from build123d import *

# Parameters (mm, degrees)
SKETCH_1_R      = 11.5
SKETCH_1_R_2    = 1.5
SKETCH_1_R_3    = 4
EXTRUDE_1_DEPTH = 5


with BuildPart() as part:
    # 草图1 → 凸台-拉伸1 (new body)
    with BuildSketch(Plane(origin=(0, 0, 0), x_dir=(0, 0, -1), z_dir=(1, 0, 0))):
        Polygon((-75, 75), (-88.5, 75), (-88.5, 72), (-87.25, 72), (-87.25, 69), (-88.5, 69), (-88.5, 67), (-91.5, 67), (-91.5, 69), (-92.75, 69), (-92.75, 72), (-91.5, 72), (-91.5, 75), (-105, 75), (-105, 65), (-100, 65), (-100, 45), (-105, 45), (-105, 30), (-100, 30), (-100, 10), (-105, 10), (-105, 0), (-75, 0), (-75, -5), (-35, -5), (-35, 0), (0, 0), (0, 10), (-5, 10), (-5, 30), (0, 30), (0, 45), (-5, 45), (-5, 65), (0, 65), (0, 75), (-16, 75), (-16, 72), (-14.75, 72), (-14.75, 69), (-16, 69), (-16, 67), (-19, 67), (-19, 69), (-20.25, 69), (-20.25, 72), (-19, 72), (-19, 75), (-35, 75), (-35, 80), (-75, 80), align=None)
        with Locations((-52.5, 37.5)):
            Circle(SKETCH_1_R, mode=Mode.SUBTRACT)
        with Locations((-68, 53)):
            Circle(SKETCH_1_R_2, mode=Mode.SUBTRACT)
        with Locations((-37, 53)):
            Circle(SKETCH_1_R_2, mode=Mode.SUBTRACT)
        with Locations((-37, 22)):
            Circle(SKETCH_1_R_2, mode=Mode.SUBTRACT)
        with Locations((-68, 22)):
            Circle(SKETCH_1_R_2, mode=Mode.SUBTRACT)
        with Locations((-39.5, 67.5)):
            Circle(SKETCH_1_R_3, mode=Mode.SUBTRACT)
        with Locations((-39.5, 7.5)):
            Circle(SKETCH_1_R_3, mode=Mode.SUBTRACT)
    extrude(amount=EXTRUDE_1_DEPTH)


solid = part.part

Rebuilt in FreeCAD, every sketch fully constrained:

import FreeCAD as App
import Part
import Sketcher

doc = App.newDocument("Part")
body = doc.addObject("PartDesign::Body", "Body")

# Sketch on YZ plane
sketch1 = body.newObject("Sketcher::SketchObject", "Sketch")
sketch1.AttachmentSupport = (doc.getObject("YZ_Plane"), [""])
sketch1.MapMode = "FlatFace"
sketch1.addGeometry(Part.LineSegment(App.Vector(75, 75, 0), App.Vector(75, 88.5, 0)), False)
sketch1.addGeometry(Part.LineSegment(App.Vector(75, 88.5, 0), App.Vector(72, 88.5, 0)), False)
sketch1.addGeometry(Part.LineSegment(App.Vector(72, 88.5, 0), App.Vector(72, 87.2, 0)), False)
sketch1.addGeometry(Part.LineSegment(App.Vector(72, 87.2, 0), App.Vector(69, 87.2, 0)), False)
sketch1.addGeometry(Part.LineSegment(App.Vector(69, 87.2, 0), App.Vector(69, 88.5, 0)), False)
sketch1.addGeometry(Part.LineSegment(App.Vector(69, 88.5, 0), App.Vector(67, 88.5, 0)), False)
sketch1.addGeometry(Part.LineSegment(App.Vector(67, 88.5, 0), App.Vector(67, 91.5, 0)), False)
sketch1.addGeometry(Part.LineSegment(App.Vector(67, 91.5, 0), App.Vector(69, 91.5, 0)), False)
sketch1.addGeometry(Part.LineSegment(App.Vector(69, 91.5, 0), App.Vector(69, 92.8, 0)), False)
sketch1.addGeometry(Part.LineSegment(App.Vector(69, 92.8, 0), App.Vector(72, 92.8, 0)), False)
sketch1.addGeometry(Part.LineSegment(App.Vector(72, 92.8, 0), App.Vector(72, 91.5, 0)), False)
sketch1.addGeometry(Part.LineSegment(App.Vector(72, 91.5, 0), App.Vector(75, 91.5, 0)), False)
sketch1.addGeometry(Part.LineSegment(App.Vector(75, 91.5, 0), App.Vector(75, 105, 0)), False)
sketch1.addGeometry(Part.LineSegment(App.Vector(75, 105, 0), App.Vector(65, 105, 0)), False)
sketch1.addGeometry(Part.LineSegment(App.Vector(65, 105, 0), App.Vector(65, 100, 0)), False)
sketch1.addGeometry(Part.LineSegment(App.Vector(65, 100, 0), App.Vector(45, 100, 0)), False)
sketch1.addGeometry(Part.LineSegment(App.Vector(45, 100, 0), App.Vector(45, 105, 0)), False)
sketch1.addGeometry(Part.LineSegment(App.Vector(45, 105, 0), App.Vector(30, 105, 0)), False)
sketch1.addGeometry(Part.LineSegment(App.Vector(30, 105, 0), App.Vector(30, 100, 0)), False)
sketch1.addGeometry(Part.LineSegment(App.Vector(30, 100, 0), App.Vector(10, 100, 0)), False)
sketch1.addGeometry(Part.LineSegment(App.Vector(10, 100, 0), App.Vector(10, 105, 0)), False)
sketch1.addGeometry(Part.LineSegment(App.Vector(10, 105, 0), App.Vector(0, 105, 0)), False)
sketch1.addGeometry(Part.LineSegment(App.Vector(0, 105, 0), App.Vector(0, 75, 0)), False)
sketch1.addGeometry(Part.LineSegment(App.Vector(0, 75, 0), App.Vector(-5, 75, 0)), False)
sketch1.addGeometry(Part.LineSegment(App.Vector(-5, 75, 0), App.Vector(-5, 35, 0)), False)
sketch1.addGeometry(Part.LineSegment(App.Vector(-5, 35, 0), App.Vector(0, 35, 0)), False)
sketch1.addGeometry(Part.LineSegment(App.Vector(0, 35, 0), App.Vector(0, 0, 0)), False)
sketch1.addGeometry(Part.LineSegment(App.Vector(0, 0, 0), App.Vector(10, 0, 0)), False)
sketch1.addGeometry(Part.LineSegment(App.Vector(10, 0, 0), App.Vector(10, 5, 0)), False)
sketch1.addGeometry(Part.LineSegment(App.Vector(10, 5, 0), App.Vector(30, 5, 0)), False)
sketch1.addGeometry(Part.LineSegment(App.Vector(30, 5, 0), App.Vector(30, 0, 0)), False)
sketch1.addGeometry(Part.LineSegment(App.Vector(30, 0, 0), App.Vector(45, 0, 0)), False)
sketch1.addGeometry(Part.LineSegment(App.Vector(45, 0, 0), App.Vector(45, 5, 0)), False)
sketch1.addGeometry(Part.LineSegment(App.Vector(45, 5, 0), App.Vector(65, 5, 0)), False)
sketch1.addGeometry(Part.LineSegment(App.Vector(65, 5, 0), App.Vector(65, 0, 0)), False)
sketch1.addGeometry(Part.LineSegment(App.Vector(65, 0, 0), App.Vector(75, 0, 0)), False)
sketch1.addGeometry(Part.LineSegment(App.Vector(75, 0, 0), App.Vector(75, 16, 0)), False)
sketch1.addGeometry(Part.LineSegment(App.Vector(75, 16, 0), App.Vector(72, 16, 0)), False)
sketch1.addGeometry(Part.LineSegment(App.Vector(72, 16, 0), App.Vector(72, 14.8, 0)), False)
sketch1.addGeometry(Part.LineSegment(App.Vector(72, 14.8, 0), App.Vector(69, 14.8, 0)), False)
sketch1.addGeometry(Part.LineSegment(App.Vector(69, 14.8, 0), App.Vector(69, 16, 0)), False)
sketch1.addGeometry(Part.LineSegment(App.Vector(69, 16, 0), App.Vector(67, 16, 0)), False)
sketch1.addGeometry(Part.LineSegment(App.Vector(67, 16, 0), App.Vector(67, 19, 0)), False)
sketch1.addGeometry(Part.LineSegment(App.Vector(67, 19, 0), App.Vector(69, 19, 0)), False)
sketch1.addGeometry(Part.LineSegment(App.Vector(69, 19, 0), App.Vector(69, 20.2, 0)), False)
sketch1.addGeometry(Part.LineSegment(App.Vector(69, 20.2, 0), App.Vector(72, 20.2, 0)), False)
sketch1.addGeometry(Part.LineSegment(App.Vector(72, 20.2, 0), App.Vector(72, 19, 0)), False)
sketch1.addGeometry(Part.LineSegment(App.Vector(72, 19, 0), App.Vector(75, 19, 0)), False)
sketch1.addGeometry(Part.LineSegment(App.Vector(75, 19, 0), App.Vector(75, 35, 0)), False)
sketch1.addGeometry(Part.LineSegment(App.Vector(75, 35, 0), App.Vector(80, 35, 0)), False)
sketch1.addGeometry(Part.LineSegment(App.Vector(80, 35, 0), App.Vector(80, 75, 0)), False)
sketch1.addGeometry(Part.LineSegment(App.Vector(80, 75, 0), App.Vector(75, 75, 0)), False)
sketch1.addGeometry(Part.Circle(App.Vector(22, 68, 0), App.Vector(0, 0, 1), 1.5), False)
sketch1.addGeometry(Part.Circle(App.Vector(7.5, 39.5, 0), App.Vector(0, 0, 1), 4), False)
sketch1.addGeometry(Part.Circle(App.Vector(22, 37, 0), App.Vector(0, 0, 1), 1.5), False)
sketch1.addGeometry(Part.Circle(App.Vector(53, 68, 0), App.Vector(0, 0, 1), 1.5), False)
sketch1.addGeometry(Part.Circle(App.Vector(37.5, 52.5, 0), App.Vector(0, 0, 1), 11.5), False)
sketch1.addGeometry(Part.Circle(App.Vector(53, 37, 0), App.Vector(0, 0, 1), 1.5), False)
sketch1.addGeometry(Part.Circle(App.Vector(67.5, 39.5, 0), App.Vector(0, 0, 1), 4), False)
sketch1.addConstraint(Sketcher.Constraint("Coincident", 0, 2, 1, 1))
sketch1.addConstraint(Sketcher.Constraint("Coincident", 1, 2, 2, 1))
sketch1.addConstraint(Sketcher.Constraint("Coincident", 2, 2, 3, 1))
sketch1.addConstraint(Sketcher.Constraint("Coincident", 3, 2, 4, 1))
sketch1.addConstraint(Sketcher.Constraint("Coincident", 4, 2, 5, 1))
sketch1.addConstraint(Sketcher.Constraint("Coincident", 5, 2, 6, 1))
sketch1.addConstraint(Sketcher.Constraint("Coincident", 6, 2, 7, 1))
sketch1.addConstraint(Sketcher.Constraint("Coincident", 7, 2, 8, 1))
sketch1.addConstraint(Sketcher.Constraint("Coincident", 8, 2, 9, 1))
sketch1.addConstraint(Sketcher.Constraint("Coincident", 9, 2, 10, 1))
sketch1.addConstraint(Sketcher.Constraint("Coincident", 10, 2, 11, 1))
sketch1.addConstraint(Sketcher.Constraint("Coincident", 11, 2, 12, 1))
sketch1.addConstraint(Sketcher.Constraint("Coincident", 12, 2, 13, 1))
sketch1.addConstraint(Sketcher.Constraint("Coincident", 13, 2, 14, 1))
sketch1.addConstraint(Sketcher.Constraint("Coincident", 14, 2, 15, 1))
sketch1.addConstraint(Sketcher.Constraint("Coincident", 15, 2, 16, 1))
sketch1.addConstraint(Sketcher.Constraint("Coincident", 16, 2, 17, 1))
sketch1.addConstraint(Sketcher.Constraint("Coincident", 17, 2, 18, 1))
sketch1.addConstraint(Sketcher.Constraint("Coincident", 18, 2, 19, 1))
sketch1.addConstraint(Sketcher.Constraint("Coincident", 19, 2, 20, 1))
sketch1.addConstraint(Sketcher.Constraint("Coincident", 20, 2, 21, 1))
sketch1.addConstraint(Sketcher.Constraint("Coincident", 21, 2, 22, 1))
sketch1.addConstraint(Sketcher.Constraint("Coincident", 22, 2, 23, 1))
sketch1.addConstraint(Sketcher.Constraint("Coincident", 23, 2, 24, 1))
sketch1.addConstraint(Sketcher.Constraint("Coincident", 24, 2, 25, 1))
sketch1.addConstraint(Sketcher.Constraint("Coincident", 25, 2, 26, 1))
sketch1.addConstraint(Sketcher.Constraint("Coincident", 26, 2, 27, 1))
sketch1.addConstraint(Sketcher.Constraint("Coincident", 27, 2, 28, 1))
sketch1.addConstraint(Sketcher.Constraint("Coincident", 28, 2, 29, 1))
sketch1.addConstraint(Sketcher.Constraint("Coincident", 29, 2, 30, 1))
sketch1.addConstraint(Sketcher.Constraint("Coincident", 30, 2, 31, 1))
sketch1.addConstraint(Sketcher.Constraint("Coincident", 31, 2, 32, 1))
sketch1.addConstraint(Sketcher.Constraint("Coincident", 32, 2, 33, 1))
sketch1.addConstraint(Sketcher.Constraint("Coincident", 33, 2, 34, 1))
sketch1.addConstraint(Sketcher.Constraint("Coincident", 34, 2, 35, 1))
sketch1.addConstraint(Sketcher.Constraint("Coincident", 35, 2, 36, 1))
sketch1.addConstraint(Sketcher.Constraint("Coincident", 36, 2, 37, 1))
sketch1.addConstraint(Sketcher.Constraint("Coincident", 37, 2, 38, 1))
sketch1.addConstraint(Sketcher.Constraint("Coincident", 38, 2, 39, 1))
sketch1.addConstraint(Sketcher.Constraint("Coincident", 39, 2, 40, 1))
sketch1.addConstraint(Sketcher.Constraint("Coincident", 40, 2, 41, 1))
sketch1.addConstraint(Sketcher.Constraint("Coincident", 41, 2, 42, 1))
sketch1.addConstraint(Sketcher.Constraint("Coincident", 42, 2, 43, 1))
sketch1.addConstraint(Sketcher.Constraint("Coincident", 43, 2, 44, 1))
sketch1.addConstraint(Sketcher.Constraint("Coincident", 44, 2, 45, 1))
sketch1.addConstraint(Sketcher.Constraint("Coincident", 45, 2, 46, 1))
sketch1.addConstraint(Sketcher.Constraint("Coincident", 46, 2, 47, 1))
sketch1.addConstraint(Sketcher.Constraint("Coincident", 47, 2, 48, 1))
sketch1.addConstraint(Sketcher.Constraint("Coincident", 48, 2, 49, 1))
sketch1.addConstraint(Sketcher.Constraint("Coincident", 49, 2, 50, 1))
sketch1.addConstraint(Sketcher.Constraint("Coincident", 50, 2, 51, 1))
sketch1.addConstraint(Sketcher.Constraint("Coincident", 51, 2, 0, 1))
sketch1.addConstraint(Sketcher.Constraint("Vertical", 0))
sketch1.addConstraint(Sketcher.Constraint("Horizontal", 1))
sketch1.addConstraint(Sketcher.Constraint("Vertical", 2))
sketch1.addConstraint(Sketcher.Constraint("Horizontal", 3))
sketch1.addConstraint(Sketcher.Constraint("Vertical", 4))
sketch1.addConstraint(Sketcher.Constraint("Horizontal", 5))
sketch1.addConstraint(Sketcher.Constraint("Vertical", 6))
sketch1.addConstraint(Sketcher.Constraint("Horizontal", 7))
sketch1.addConstraint(Sketcher.Constraint("Vertical", 8))
sketch1.addConstraint(Sketcher.Constraint("Horizontal", 9))
sketch1.addConstraint(Sketcher.Constraint("Vertical", 10))
sketch1.addConstraint(Sketcher.Constraint("Horizontal", 11))
sketch1.addConstraint(Sketcher.Constraint("Vertical", 12))
sketch1.addConstraint(Sketcher.Constraint("Horizontal", 13))
sketch1.addConstraint(Sketcher.Constraint("Vertical", 14))
sketch1.addConstraint(Sketcher.Constraint("Horizontal", 15))
sketch1.addConstraint(Sketcher.Constraint("Vertical", 16))
sketch1.addConstraint(Sketcher.Constraint("Horizontal", 17))
sketch1.addConstraint(Sketcher.Constraint("Vertical", 18))
sketch1.addConstraint(Sketcher.Constraint("Horizontal", 19))
sketch1.addConstraint(Sketcher.Constraint("Vertical", 20))
sketch1.addConstraint(Sketcher.Constraint("Horizontal", 21))
sketch1.addConstraint(Sketcher.Constraint("Vertical", 22))
sketch1.addConstraint(Sketcher.Constraint("Horizontal", 23))
sketch1.addConstraint(Sketcher.Constraint("Vertical", 24))
sketch1.addConstraint(Sketcher.Constraint("Horizontal", 25))
sketch1.addConstraint(Sketcher.Constraint("Vertical", 26))
sketch1.addConstraint(Sketcher.Constraint("Horizontal", 27))
sketch1.addConstraint(Sketcher.Constraint("Vertical", 28))
sketch1.addConstraint(Sketcher.Constraint("Horizontal", 29))
sketch1.addConstraint(Sketcher.Constraint("Vertical", 30))
sketch1.addConstraint(Sketcher.Constraint("Horizontal", 31))
sketch1.addConstraint(Sketcher.Constraint("Vertical", 32))
sketch1.addConstraint(Sketcher.Constraint("Horizontal", 33))
sketch1.addConstraint(Sketcher.Constraint("Vertical", 34))
sketch1.addConstraint(Sketcher.Constraint("Horizontal", 35))
sketch1.addConstraint(Sketcher.Constraint("Vertical", 36))
sketch1.addConstraint(Sketcher.Constraint("Horizontal", 37))
sketch1.addConstraint(Sketcher.Constraint("Vertical", 38))
sketch1.addConstraint(Sketcher.Constraint("Horizontal", 39))
sketch1.addConstraint(Sketcher.Constraint("Vertical", 40))
sketch1.addConstraint(Sketcher.Constraint("Horizontal", 41))
sketch1.addConstraint(Sketcher.Constraint("Vertical", 42))
sketch1.addConstraint(Sketcher.Constraint("Horizontal", 43))
sketch1.addConstraint(Sketcher.Constraint("Vertical", 44))
sketch1.addConstraint(Sketcher.Constraint("Horizontal", 45))
sketch1.addConstraint(Sketcher.Constraint("Vertical", 46))
sketch1.addConstraint(Sketcher.Constraint("Horizontal", 47))
sketch1.addConstraint(Sketcher.Constraint("Vertical", 48))
sketch1.addConstraint(Sketcher.Constraint("Horizontal", 49))
sketch1.addConstraint(Sketcher.Constraint("Vertical", 50))
sketch1.addConstraint(Sketcher.Constraint("Horizontal", 51))
sketch1.addConstraint(Sketcher.Constraint("Coincident", 26, 2, -1, 1))
sketch1.addConstraint(Sketcher.Constraint("Equal", 52, 54))
sketch1.addConstraint(Sketcher.Constraint("Equal", 54, 55))
sketch1.addConstraint(Sketcher.Constraint("Equal", 55, 57))
sketch1.addConstraint(Sketcher.Constraint("Equal", 53, 58))
sketch1.addConstraint(Sketcher.Constraint("PointOnObject", 21, 2, -2))
sketch1.addConstraint(Sketcher.Constraint("PointOnObject", 30, 2, -1))
sketch1.addConstraint(Sketcher.Constraint("PointOnObject", 34, 2, -1))
sketch1.addConstraint(Sketcher.Constraint("Horizontal", 52, 3, 55, 3))
sketch1.addConstraint(Sketcher.Constraint("Horizontal", 54, 3, 57, 3))
sketch1.addConstraint(Sketcher.Constraint("Horizontal", 53, 3, 58, 3))
sketch1.addConstraint(Sketcher.Constraint("Horizontal", 1, 2, 4, 2))
sketch1.addConstraint(Sketcher.Constraint("Horizontal", 7, 2, 10, 2))
sketch1.addConstraint(Sketcher.Constraint("Horizontal", 13, 2, 16, 2))
sketch1.addConstraint(Sketcher.Constraint("Horizontal", 15, 2, 18, 2))
sketch1.addConstraint(Sketcher.Constraint("Horizontal", 17, 2, 20, 2))
sketch1.addConstraint(Sketcher.Constraint("Horizontal", 29, 2, 32, 2))
sketch1.addConstraint(Sketcher.Constraint("Horizontal", 37, 2, 40, 2))
sketch1.addConstraint(Sketcher.Constraint("Horizontal", 43, 2, 46, 2))
sketch1.addConstraint(Sketcher.Constraint("Horizontal", 25, 2, 48, 2))
sketch1.addConstraint(Sketcher.Constraint("Horizontal", 23, 2, 50, 2))
sketch1.addConstraint(Sketcher.Constraint("Vertical", 52, 3, 54, 3))
sketch1.addConstraint(Sketcher.Constraint("Vertical", 55, 3, 57, 3))
sketch1.addConstraint(Sketcher.Constraint("Vertical", 4, 2, 7, 2))
sketch1.addConstraint(Sketcher.Constraint("Vertical", 2, 2, 9, 2))
sketch1.addConstraint(Sketcher.Constraint("Vertical", 0, 2, 11, 2))
sketch1.addConstraint(Sketcher.Constraint("Vertical", 20, 2, 27, 2))
sketch1.addConstraint(Sketcher.Constraint("Vertical", 18, 2, 29, 2))
sketch1.addConstraint(Sketcher.Constraint("Vertical", 16, 2, 31, 2))
sketch1.addConstraint(Sketcher.Constraint("Vertical", 14, 2, 33, 2))
sketch1.addConstraint(Sketcher.Constraint("Vertical", 12, 2, 35, 2))
sketch1.addConstraint(Sketcher.Constraint("Vertical", 10, 2, 37, 2))
sketch1.addConstraint(Sketcher.Constraint("Vertical", 8, 2, 39, 2))
sketch1.addConstraint(Sketcher.Constraint("Vertical", 6, 2, 41, 2))
sketch1.addConstraint(Sketcher.Constraint("Vertical", 40, 2, 43, 2))
sketch1.addConstraint(Sketcher.Constraint("Vertical", 38, 2, 45, 2))
sketch1.addConstraint(Sketcher.Constraint("Vertical", 36, 2, 47, 2))
sketch1.addConstraint(Sketcher.Constraint("Equal", 1, 3))
sketch1.addConstraint(Sketcher.Constraint("Equal", 15, 19))
sketch1.addConstraint(Sketcher.Constraint("Equal", 13, 21))
sketch1.addConstraint(Sketcher.Constraint("Equal", 25, 49))
sketch1.addConstraint(Sketcher.Constraint("Equal", 47, 6))
sketch1.addConstraint(Sketcher.Constraint("Equal", 4, 8))
sketch1.addConstraint(Sketcher.Constraint("Equal", 0, 12))
sketch1.addConstraint(Sketcher.Constraint("Equal", 51, 14))
sketch1.addConstraint(Sketcher.Constraint("Equal", 20, 28))
sketch1.addConstraint(Sketcher.Constraint("Equal", 10, 38))
sketch1.addConstraint(Sketcher.Constraint("Equal", 6, 42))
sketch1.addConstraint(Sketcher.Constraint("Equal", 40, 44))
sketch1.addConstraint(Sketcher.Constraint("Equal", 36, 48))
sketch1.addConstraint(Sketcher.Constraint("Diameter", 52, 3.0))
sketch1.addConstraint(Sketcher.Constraint("Diameter", 53, 8.0))
sketch1.addConstraint(Sketcher.Constraint("Diameter", 56, 23.0))
sketch1.addConstraint(Sketcher.Constraint("DistanceX", 1, 2, 1, 1, 3.0))
sketch1.addConstraint(Sketcher.Constraint("DistanceX", 5, 2, 5, 1, 2.0))
sketch1.addConstraint(Sketcher.Constraint("DistanceX", 13, 2, 13, 1, 10.0))
sketch1.addConstraint(Sketcher.Constraint("DistanceX", 15, 2, 15, 1, 20.0))
sketch1.addConstraint(Sketcher.Constraint("DistanceX", 17, 2, 17, 1, 15.0))
sketch1.addConstraint(Sketcher.Constraint("DistanceX", 23, 2, 23, 1, 5.0))
sketch1.addConstraint(Sketcher.Constraint("DistanceY", 22, 2, 22, 1, 30.0))
sketch1.addConstraint(Sketcher.Constraint("DistanceY", 24, 2, 24, 1, 40.0))
sketch1.addConstraint(Sketcher.Constraint("DistanceY", 26, 2, 26, 1, 35.0))
sketch1.addConstraint(Sketcher.Constraint("DistanceX", -1, 1, 52, 3, 22.0))
sketch1.addConstraint(Sketcher.Constraint("DistanceY", -1, 1, 52, 3, 68.0))
sketch1.addConstraint(Sketcher.Constraint("DistanceY", -1, 1, 54, 3, 37.0))
sketch1.addConstraint(Sketcher.Constraint("DistanceX", -1, 1, 55, 3, 53.0))
sketch1.addConstraint(Sketcher.Constraint("DistanceX", 53, 3, 56, 3, 30.0))
sketch1.addConstraint(Sketcher.Constraint("DistanceY", 53, 3, 56, 3, 13.0))
sketch1.addConstraint(Sketcher.Constraint("DistanceX", 56, 3, 58, 3, 30.0))
sketch1.addConstraint(Sketcher.Constraint("DistanceY", 58, 3, 0, 2, 49.0))
sketch1.addConstraint(Sketcher.Constraint("DistanceY", 2, 2, 2, 1, 1.25))
sketch1.addConstraint(Sketcher.Constraint("DistanceX", -1, 1, 53, 3, 7.5))
pad1 = body.newObject("PartDesign::Pad", "Pad")
pad1.Profile = sketch1
pad1.Length = 5

doc.recompute()
